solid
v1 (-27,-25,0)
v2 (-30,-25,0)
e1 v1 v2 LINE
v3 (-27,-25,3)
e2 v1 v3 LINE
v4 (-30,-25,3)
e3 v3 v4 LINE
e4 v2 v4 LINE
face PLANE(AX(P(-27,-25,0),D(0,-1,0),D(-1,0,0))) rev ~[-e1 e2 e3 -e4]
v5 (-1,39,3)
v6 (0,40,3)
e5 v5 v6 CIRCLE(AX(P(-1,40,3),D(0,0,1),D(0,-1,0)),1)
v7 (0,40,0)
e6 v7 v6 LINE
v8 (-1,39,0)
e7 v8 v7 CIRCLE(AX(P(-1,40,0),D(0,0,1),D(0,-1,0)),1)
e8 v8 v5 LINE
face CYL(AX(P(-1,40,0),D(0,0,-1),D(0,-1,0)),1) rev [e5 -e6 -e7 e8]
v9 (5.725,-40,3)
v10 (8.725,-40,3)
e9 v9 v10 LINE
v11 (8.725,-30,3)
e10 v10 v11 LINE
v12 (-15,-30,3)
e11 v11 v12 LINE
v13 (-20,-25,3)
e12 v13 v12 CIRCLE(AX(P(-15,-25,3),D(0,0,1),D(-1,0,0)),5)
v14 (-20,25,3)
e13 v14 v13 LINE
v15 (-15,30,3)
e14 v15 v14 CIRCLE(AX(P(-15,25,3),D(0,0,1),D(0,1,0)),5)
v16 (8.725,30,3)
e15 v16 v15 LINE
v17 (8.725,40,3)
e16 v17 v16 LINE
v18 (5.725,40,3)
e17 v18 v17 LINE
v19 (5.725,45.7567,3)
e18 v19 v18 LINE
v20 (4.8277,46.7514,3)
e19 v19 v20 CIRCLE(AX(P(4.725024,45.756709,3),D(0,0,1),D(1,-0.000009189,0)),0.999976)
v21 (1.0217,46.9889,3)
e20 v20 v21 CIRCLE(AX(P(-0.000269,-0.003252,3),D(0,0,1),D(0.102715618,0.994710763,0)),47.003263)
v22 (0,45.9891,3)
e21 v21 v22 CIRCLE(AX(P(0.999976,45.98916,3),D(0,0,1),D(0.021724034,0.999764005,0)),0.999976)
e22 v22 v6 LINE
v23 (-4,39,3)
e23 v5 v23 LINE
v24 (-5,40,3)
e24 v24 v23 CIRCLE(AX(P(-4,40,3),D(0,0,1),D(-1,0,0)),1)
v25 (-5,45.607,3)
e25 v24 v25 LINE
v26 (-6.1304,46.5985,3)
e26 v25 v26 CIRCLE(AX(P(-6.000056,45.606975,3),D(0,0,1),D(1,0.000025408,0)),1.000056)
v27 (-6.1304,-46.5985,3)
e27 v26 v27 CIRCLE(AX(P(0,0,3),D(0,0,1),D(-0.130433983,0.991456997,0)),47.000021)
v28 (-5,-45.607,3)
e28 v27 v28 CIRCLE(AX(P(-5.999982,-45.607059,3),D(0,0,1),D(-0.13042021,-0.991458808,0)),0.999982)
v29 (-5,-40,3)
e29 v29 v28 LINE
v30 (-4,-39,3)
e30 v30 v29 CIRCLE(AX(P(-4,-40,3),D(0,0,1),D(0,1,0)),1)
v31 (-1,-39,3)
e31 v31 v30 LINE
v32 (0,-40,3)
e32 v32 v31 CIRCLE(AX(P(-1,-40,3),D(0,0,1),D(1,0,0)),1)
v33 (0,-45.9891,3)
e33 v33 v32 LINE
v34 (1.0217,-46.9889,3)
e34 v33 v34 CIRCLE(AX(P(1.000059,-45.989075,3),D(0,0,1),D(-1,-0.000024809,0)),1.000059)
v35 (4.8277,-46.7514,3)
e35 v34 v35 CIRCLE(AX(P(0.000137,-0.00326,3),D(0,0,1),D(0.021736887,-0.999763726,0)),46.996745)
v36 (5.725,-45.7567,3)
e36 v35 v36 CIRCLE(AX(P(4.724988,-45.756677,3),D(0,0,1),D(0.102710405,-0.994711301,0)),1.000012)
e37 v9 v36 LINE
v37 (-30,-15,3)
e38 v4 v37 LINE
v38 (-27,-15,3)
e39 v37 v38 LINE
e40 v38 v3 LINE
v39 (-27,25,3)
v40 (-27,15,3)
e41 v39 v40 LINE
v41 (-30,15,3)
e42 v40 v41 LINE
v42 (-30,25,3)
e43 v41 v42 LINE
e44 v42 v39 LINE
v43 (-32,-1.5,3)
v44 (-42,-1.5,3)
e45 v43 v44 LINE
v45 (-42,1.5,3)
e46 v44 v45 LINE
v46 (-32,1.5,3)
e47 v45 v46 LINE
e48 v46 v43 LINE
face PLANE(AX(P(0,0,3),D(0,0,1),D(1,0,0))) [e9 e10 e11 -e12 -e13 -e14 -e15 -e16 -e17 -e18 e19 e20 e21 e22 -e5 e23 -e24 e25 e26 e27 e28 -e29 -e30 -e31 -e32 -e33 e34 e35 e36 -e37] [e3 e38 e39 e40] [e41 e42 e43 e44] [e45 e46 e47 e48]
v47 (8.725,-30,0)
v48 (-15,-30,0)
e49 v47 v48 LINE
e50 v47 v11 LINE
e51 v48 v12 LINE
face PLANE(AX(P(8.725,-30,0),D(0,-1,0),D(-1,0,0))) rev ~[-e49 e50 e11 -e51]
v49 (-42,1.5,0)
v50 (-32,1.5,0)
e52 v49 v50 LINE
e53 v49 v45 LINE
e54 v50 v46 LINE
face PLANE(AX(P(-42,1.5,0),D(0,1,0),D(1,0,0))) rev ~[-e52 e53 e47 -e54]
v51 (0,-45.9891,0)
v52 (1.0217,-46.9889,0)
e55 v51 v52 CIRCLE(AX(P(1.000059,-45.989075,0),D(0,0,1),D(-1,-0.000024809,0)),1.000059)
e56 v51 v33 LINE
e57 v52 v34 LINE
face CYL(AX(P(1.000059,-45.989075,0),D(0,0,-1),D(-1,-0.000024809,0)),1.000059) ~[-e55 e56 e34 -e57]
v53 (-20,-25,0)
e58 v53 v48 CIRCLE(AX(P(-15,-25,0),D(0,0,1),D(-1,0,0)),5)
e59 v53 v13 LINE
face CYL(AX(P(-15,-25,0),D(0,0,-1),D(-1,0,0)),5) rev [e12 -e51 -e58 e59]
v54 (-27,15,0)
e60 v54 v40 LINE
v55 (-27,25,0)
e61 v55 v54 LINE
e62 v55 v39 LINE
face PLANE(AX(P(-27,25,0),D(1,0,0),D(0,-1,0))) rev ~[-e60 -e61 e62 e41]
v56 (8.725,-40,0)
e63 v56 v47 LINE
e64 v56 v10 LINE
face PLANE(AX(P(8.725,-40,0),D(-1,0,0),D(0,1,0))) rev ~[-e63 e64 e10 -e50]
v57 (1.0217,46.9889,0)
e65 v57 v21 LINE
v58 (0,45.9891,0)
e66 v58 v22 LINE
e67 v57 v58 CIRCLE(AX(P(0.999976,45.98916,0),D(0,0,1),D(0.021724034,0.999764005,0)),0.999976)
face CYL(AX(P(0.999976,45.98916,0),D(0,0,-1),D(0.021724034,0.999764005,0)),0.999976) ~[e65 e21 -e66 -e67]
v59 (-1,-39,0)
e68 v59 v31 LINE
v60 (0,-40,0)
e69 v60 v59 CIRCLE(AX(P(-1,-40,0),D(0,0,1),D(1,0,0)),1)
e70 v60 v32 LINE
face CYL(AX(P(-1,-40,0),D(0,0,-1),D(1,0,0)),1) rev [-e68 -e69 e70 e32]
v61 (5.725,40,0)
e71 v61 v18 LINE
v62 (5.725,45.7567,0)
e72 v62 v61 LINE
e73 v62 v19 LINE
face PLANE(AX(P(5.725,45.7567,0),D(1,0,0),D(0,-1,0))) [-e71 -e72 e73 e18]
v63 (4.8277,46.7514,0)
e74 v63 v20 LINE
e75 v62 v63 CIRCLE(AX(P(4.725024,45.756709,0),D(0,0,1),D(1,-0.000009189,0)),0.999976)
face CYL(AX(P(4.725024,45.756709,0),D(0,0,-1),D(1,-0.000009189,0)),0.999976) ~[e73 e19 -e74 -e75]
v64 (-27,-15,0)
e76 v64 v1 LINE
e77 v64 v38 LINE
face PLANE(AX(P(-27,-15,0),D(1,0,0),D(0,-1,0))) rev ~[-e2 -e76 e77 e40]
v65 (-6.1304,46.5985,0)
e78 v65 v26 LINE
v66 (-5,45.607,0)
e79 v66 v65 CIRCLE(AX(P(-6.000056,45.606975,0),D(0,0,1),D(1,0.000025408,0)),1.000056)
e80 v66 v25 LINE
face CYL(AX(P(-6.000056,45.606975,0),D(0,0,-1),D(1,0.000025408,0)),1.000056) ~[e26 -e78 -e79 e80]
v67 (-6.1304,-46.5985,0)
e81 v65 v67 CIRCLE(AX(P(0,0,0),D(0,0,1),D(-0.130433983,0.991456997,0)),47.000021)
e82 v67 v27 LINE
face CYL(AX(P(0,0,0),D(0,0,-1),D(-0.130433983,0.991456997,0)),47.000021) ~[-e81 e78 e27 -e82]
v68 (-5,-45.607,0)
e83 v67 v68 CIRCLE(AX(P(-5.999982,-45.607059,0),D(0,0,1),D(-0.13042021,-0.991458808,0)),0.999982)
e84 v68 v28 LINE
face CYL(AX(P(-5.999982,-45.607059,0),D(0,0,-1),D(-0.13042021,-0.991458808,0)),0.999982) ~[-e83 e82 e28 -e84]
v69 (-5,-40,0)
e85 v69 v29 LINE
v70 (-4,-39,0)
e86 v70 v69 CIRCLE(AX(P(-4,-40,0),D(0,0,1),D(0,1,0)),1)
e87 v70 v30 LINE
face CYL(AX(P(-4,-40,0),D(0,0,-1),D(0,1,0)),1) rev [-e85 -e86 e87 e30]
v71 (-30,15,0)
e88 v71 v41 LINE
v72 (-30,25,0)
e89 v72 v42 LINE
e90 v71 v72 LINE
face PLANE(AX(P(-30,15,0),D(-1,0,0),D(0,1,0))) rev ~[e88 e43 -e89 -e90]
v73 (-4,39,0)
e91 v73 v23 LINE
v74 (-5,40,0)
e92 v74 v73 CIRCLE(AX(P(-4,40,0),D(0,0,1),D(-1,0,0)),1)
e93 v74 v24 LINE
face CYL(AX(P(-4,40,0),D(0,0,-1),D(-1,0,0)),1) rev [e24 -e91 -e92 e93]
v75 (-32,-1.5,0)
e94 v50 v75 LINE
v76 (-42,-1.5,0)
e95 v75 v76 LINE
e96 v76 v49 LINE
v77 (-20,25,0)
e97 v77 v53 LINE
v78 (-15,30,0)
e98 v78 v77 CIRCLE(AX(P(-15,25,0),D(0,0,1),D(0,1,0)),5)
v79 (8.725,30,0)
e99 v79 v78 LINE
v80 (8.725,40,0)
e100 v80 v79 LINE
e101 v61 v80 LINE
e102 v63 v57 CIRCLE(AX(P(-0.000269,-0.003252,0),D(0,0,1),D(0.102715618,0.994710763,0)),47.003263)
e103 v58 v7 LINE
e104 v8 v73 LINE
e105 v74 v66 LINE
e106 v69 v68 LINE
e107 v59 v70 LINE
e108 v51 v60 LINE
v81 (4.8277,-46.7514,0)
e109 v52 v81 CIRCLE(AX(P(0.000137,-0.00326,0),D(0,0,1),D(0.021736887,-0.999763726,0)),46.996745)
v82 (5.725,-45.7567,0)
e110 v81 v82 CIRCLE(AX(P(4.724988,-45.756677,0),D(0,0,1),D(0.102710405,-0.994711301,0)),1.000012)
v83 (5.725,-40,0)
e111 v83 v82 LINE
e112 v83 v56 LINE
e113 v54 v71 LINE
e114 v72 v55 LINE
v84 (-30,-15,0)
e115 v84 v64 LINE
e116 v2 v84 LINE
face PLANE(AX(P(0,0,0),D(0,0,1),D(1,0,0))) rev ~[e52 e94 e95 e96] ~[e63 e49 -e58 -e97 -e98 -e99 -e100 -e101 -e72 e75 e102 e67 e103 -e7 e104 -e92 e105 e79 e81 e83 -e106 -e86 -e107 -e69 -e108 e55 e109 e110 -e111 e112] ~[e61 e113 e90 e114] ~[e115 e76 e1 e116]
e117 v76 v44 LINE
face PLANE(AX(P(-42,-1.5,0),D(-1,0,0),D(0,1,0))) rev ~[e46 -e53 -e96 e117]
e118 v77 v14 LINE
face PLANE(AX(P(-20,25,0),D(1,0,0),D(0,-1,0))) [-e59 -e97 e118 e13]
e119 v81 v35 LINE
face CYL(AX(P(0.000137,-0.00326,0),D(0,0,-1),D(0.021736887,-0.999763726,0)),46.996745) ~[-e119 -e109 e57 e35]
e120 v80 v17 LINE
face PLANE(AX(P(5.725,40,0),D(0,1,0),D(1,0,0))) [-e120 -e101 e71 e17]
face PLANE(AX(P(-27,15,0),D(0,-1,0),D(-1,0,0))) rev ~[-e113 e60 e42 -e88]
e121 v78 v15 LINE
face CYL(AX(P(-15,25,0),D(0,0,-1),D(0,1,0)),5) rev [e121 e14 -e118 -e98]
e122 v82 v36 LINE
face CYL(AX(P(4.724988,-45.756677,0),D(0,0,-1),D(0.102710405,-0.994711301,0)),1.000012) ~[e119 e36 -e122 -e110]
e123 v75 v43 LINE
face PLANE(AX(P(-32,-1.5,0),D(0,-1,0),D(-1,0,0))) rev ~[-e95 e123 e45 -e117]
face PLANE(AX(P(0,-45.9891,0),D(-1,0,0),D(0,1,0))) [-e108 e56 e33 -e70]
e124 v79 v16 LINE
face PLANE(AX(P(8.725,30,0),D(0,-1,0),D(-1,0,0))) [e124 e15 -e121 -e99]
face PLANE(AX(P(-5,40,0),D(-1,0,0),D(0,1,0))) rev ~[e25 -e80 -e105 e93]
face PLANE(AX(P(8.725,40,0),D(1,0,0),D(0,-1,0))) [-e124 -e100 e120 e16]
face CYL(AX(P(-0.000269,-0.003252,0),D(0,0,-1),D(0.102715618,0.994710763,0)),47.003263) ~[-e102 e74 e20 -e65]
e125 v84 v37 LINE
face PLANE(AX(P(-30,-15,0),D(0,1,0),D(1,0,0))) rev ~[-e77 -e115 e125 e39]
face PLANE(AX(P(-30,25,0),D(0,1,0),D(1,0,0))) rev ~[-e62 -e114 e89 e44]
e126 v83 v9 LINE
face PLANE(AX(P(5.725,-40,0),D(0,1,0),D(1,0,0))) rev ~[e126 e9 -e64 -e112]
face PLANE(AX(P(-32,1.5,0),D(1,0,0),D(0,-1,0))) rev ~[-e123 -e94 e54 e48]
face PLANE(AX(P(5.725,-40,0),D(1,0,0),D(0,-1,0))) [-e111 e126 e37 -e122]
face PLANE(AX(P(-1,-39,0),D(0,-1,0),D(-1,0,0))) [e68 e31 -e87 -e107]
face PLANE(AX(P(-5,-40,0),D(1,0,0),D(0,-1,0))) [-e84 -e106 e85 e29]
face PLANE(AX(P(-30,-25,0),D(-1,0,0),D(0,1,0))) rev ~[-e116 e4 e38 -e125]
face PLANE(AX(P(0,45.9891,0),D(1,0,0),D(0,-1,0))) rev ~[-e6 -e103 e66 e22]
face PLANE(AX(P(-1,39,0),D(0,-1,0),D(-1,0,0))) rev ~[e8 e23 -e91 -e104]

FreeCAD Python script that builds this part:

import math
import FreeCAD as App
import Part
import Sketcher
Q = App.Units.Quantity


def add_polygon(sketch, points):
    """Adds a closed chain of lines whose ends are joined by coincident constraints."""
    first, n = sketch.GeometryCount, len(points)
    for a, b in zip(points, points[1:] + points[:1]):
        sketch.addGeometry(Part.LineSegment(App.Vector(*a, 0), App.Vector(*b, 0)), False)
    for i in range(n):
        sketch.addConstraint(Sketcher.Constraint("Coincident", first + i, 2, first + (i + 1) % n, 1))

doc = App.newDocument("Part")
body = doc.addObject("PartDesign::Body", "Body")

# Sketch on XY plane
sketch1 = body.newObject("Sketcher::SketchObject", "Sketch")
sketch1.AttachmentSupport = (doc.getObject("XY_Plane"), [""])
sketch1.MapMode = "FlatFace"
sketch1.addGeometry(Part.LineSegment(App.Vector(8.725, 40, 0), App.Vector(5.725, 40, 0)), False)  # 0
sketch1.addGeometry(Part.LineSegment(App.Vector(5.725, 40, 0), App.Vector(5.725, 45.7567, 0)), False)  # 1
sketch1.addGeometry(Part.ArcOfCircle(Part.Circle(App.Vector(4.725, 45.7567, 0), App.Vector(0, 0, 1), 1), math.radians(0), math.radians(84.105257)), False)  # 2
sketch1.addGeometry(Part.ArcOfCircle(Part.Circle(App.Vector(-0.000269, -0.003252, 0), App.Vector(0, 0, 1), 47.003263), math.radians(84.104431), math.radians(88.754147)), False)  # 3
sketch1.addGeometry(Part.ArcOfCircle(Part.Circle(App.Vector(1, 45.9891, 0), App.Vector(0, 0, 1), 1.000035), math.radians(88.756628), math.radians(180)), False)  # 4
sketch1.addGeometry(Part.LineSegment(App.Vector(0, 45.9891, 0), App.Vector(0, 40, 0)), False)  # 5
sketch1.addGeometry(Part.ArcOfCircle(Part.Circle(App.Vector(-1, 40, 0), App.Vector(0, 0, 1), 1), math.radians(-90), math.radians(0)), False)  # 6
sketch1.addGeometry(Part.LineSegment(App.Vector(-1, 39, 0), App.Vector(-4, 39, 0)), False)  # 7
sketch1.addGeometry(Part.ArcOfCircle(Part.Circle(App.Vector(-4, 40, 0), App.Vector(0, 0, 1), 1), math.radians(180), math.radians(270)), False)  # 8
sketch1.addGeometry(Part.LineSegment(App.Vector(-5, 40, 0), App.Vector(-5, 45.607, 0)), False)  # 9
sketch1.addGeometry(Part.ArcOfCircle(Part.Circle(App.Vector(-6, 45.607, 0), App.Vector(0, 0, 1), 1), math.radians(0), math.radians(97.49242)), False)  # 10
sketch1.addGeometry(Part.ArcOfCircle(Part.Circle(App.Vector(0, 0, 0), App.Vector(0, 0, 1), 47.000021), math.radians(97.494671), math.radians(262.505329)), False)  # 11
sketch1.addGeometry(Part.ArcOfCircle(Part.Circle(App.Vector(-6, -45.607, 0), App.Vector(0, 0, 1), 1.000038), math.radians(-97.49242), math.radians(0)), False)  # 12
sketch1.addGeometry(Part.LineSegment(App.Vector(-5, -45.607, 0), App.Vector(-5, -40, 0)), False)  # 13
sketch1.addGeometry(Part.ArcOfCircle(Part.Circle(App.Vector(-4, -40, 0), App.Vector(0, 0, 1), 1), math.radians(90), math.radians(180)), False)  # 14
sketch1.addGeometry(Part.LineSegment(App.Vector(-4, -39, 0), App.Vector(-1, -39, 0)), False)  # 15
sketch1.addGeometry(Part.ArcOfCircle(Part.Circle(App.Vector(-1, -40, 0), App.Vector(0, 0, 1), 1), math.radians(0), math.radians(90)), False)  # 16
sketch1.addGeometry(Part.LineSegment(App.Vector(0, -40, 0), App.Vector(0, -45.9891, 0)), False)  # 17
sketch1.addGeometry(Part.ArcOfCircle(Part.Circle(App.Vector(1, -45.9891, 0), App.Vector(0, 0, 1), 1), math.radians(180), math.radians(271.243372)), False)  # 18
sketch1.addGeometry(Part.ArcOfCircle(Part.Circle(App.Vector(0.000137, -0.00326, 0), App.Vector(0, 0, 1), 46.996745), math.radians(-88.75447), math.radians(-84.104108)), False)  # 19
sketch1.addGeometry(Part.ArcOfCircle(Part.Circle(App.Vector(4.725, -45.7567, 0), App.Vector(0, 0, 1), 0.999988), math.radians(-84.105257), math.radians(0)), False)  # 20
sketch1.addGeometry(Part.LineSegment(App.Vector(5.725, -45.7567, 0), App.Vector(5.725, -40, 0)), False)  # 21
sketch1.addGeometry(Part.LineSegment(App.Vector(5.725, -40, 0), App.Vector(8.725, -40, 0)), False)  # 22
sketch1.addGeometry(Part.LineSegment(App.Vector(8.725, -40, 0), App.Vector(8.725, -30, 0)), False)  # 23
sketch1.addGeometry(Part.LineSegment(App.Vector(8.725, -30, 0), App.Vector(-15, -30, 0)), False)  # 24
sketch1.addGeometry(Part.ArcOfCircle(Part.Circle(App.Vector(-15, -25, 0), App.Vector(0, 0, 1), 5), math.radians(180), math.radians(270)), False)  # 25
sketch1.addGeometry(Part.LineSegment(App.Vector(-20, -25, 0), App.Vector(-20, 25, 0)), False)  # 26
sketch1.addGeometry(Part.ArcOfCircle(Part.Circle(App.Vector(-15, 25, 0), App.Vector(0, 0, 1), 5), math.radians(90), math.radians(180)), False)  # 27
sketch1.addGeometry(Part.LineSegment(App.Vector(-15, 30, 0), App.Vector(8.725, 30, 0)), False)  # 28
sketch1.addGeometry(Part.LineSegment(App.Vector(8.725, 30, 0), App.Vector(8.725, 40, 0)), False)  # 29
add_polygon(sketch1, [(-42, -1.5), (-42, 1.5), (-32, 1.5), (-32, -1.5)])  # lines 30-33
add_polygon(sketch1, [(-30, -25), (-30, -15), (-27, -15), (-27, -25)])  # lines 34-37
add_polygon(sketch1, [(-30, 15), (-30, 25), (-27, 25), (-27, 15)])  # lines 38-41
sketch1.addConstraint([
    Sketcher.Constraint("Coincident", 0, 2, 1, 1),
    Sketcher.Constraint("Tangent", 1, 2, 2, 1),
    Sketcher.Constraint("Tangent", 2, 2, 3, 1),
    Sketcher.Constraint("Tangent", 3, 2, 4, 1),
    Sketcher.Constraint("Tangent", 4, 2, 5, 1),
    Sketcher.Constraint("Tangent", 5, 2, 6, 2),
    Sketcher.Constraint("Tangent", 6, 1, 7, 1),
    Sketcher.Constraint("Tangent", 7, 2, 8, 2),
    Sketcher.Constraint("Tangent", 8, 1, 9, 1),
    Sketcher.Constraint("Tangent", 9, 2, 10, 1),
    Sketcher.Constraint("Tangent", 10, 2, 11, 1),
    Sketcher.Constraint("Tangent", 11, 2, 12, 1),
    Sketcher.Constraint("Tangent", 12, 2, 13, 1),
    Sketcher.Constraint("Tangent", 13, 2, 14, 2),
    Sketcher.Constraint("Tangent", 14, 1, 15, 1),
    Sketcher.Constraint("Tangent", 15, 2, 16, 2),
    Sketcher.Constraint("Tangent", 16, 1, 17, 1),
    Sketcher.Constraint("Tangent", 17, 2, 18, 1),
    Sketcher.Constraint("Tangent", 18, 2, 19, 1),
    Sketcher.Constraint("Tangent", 19, 2, 20, 1),
    Sketcher.Constraint("Tangent", 20, 2, 21, 1),
    Sketcher.Constraint("Coincident", 21, 2, 22, 1),
    Sketcher.Constraint("Coincident", 22, 2, 23, 1),
    Sketcher.Constraint("Coincident", 23, 2, 24, 1),
    Sketcher.Constraint("Tangent", 24, 2, 25, 2),
    Sketcher.Constraint("Tangent", 25, 1, 26, 1),
    Sketcher.Constraint("Tangent", 26, 2, 27, 2),
    Sketcher.Constraint("Tangent", 27, 1, 28, 1),
    Sketcher.Constraint("Coincident", 28, 2, 29, 1),
    Sketcher.Constraint("Coincident", 29, 2, 0, 1),
    Sketcher.Constraint("Horizontal", 0),
    Sketcher.Constraint("Vertical", 1),
    Sketcher.Constraint("Vertical", 5),
    Sketcher.Constraint("Horizontal", 7),
    Sketcher.Constraint("Vertical", 9),
    Sketcher.Constraint("Vertical", 13),
    Sketcher.Constraint("Horizontal", 15),
    Sketcher.Constraint("Vertical", 17),
    Sketcher.Constraint("Vertical", 21),
    Sketcher.Constraint("Horizontal", 22),
    Sketcher.Constraint("Vertical", 23),
    Sketcher.Constraint("Horizontal", 24),
    Sketcher.Constraint("Vertical", 26),
    Sketcher.Constraint("Horizontal", 28),
    Sketcher.Constraint("Vertical", 29),
    Sketcher.Constraint("Vertical", 30),
    Sketcher.Constraint("Horizontal", 31),
    Sketcher.Constraint("Vertical", 32),
    Sketcher.Constraint("Horizontal", 33),
    Sketcher.Constraint("Vertical", 34),
    Sketcher.Constraint("Horizontal", 35),
    Sketcher.Constraint("Vertical", 36),
    Sketcher.Constraint("Horizontal", 37),
    Sketcher.Constraint("Vertical", 38),
    Sketcher.Constraint("Horizontal", 39),
    Sketcher.Constraint("Vertical", 40),
    Sketcher.Constraint("Horizontal", 41),
    Sketcher.Constraint("Coincident", 11, 3, -1, 1),
    Sketcher.Constraint("Equal", 2, 4),
    Sketcher.Constraint("Equal", 4, 6),
    Sketcher.Constraint("Equal", 6, 8),
    Sketcher.Constraint("Equal", 8, 10),
    Sketcher.Constraint("Equal", 10, 12),
    Sketcher.Constraint("Equal", 12, 14),
    Sketcher.Constraint("Equal", 14, 16),
    Sketcher.Constraint("Equal", 16, 18),
    Sketcher.Constraint("Equal", 18, 20),
    Sketcher.Constraint("Equal", 25, 27),
    Sketcher.Constraint("Symmetric", 5, 2, 16, 1, -1, 1),
    Sketcher.Constraint("Symmetric", 4, 3, 18, 3, -1),
    Sketcher.Constraint("Symmetric", 2, 3, 20, 3, -1),
    Sketcher.Constraint("Symmetric", 23, 2, 28, 2, -1),
    Sketcher.Constraint("Symmetric", 37, 2, 38, 2, -1),
    Sketcher.Constraint("Symmetric", 35, 2, 40, 2, -1),
    Sketcher.Constraint("PointOnObject", 19, 3, -2),
    Sketcher.Constraint("Horizontal", 3, 3, 19, 3),
    Sketcher.Constraint("Horizontal", 8, 3, 0, 2),
    Sketcher.Constraint("Horizontal", 16, 1, 21, 2),
    Sketcher.Constraint("Horizontal", 25, 1, 36, 2),
    Sketcher.Constraint("Vertical", 10, 3, 12, 3),
    Sketcher.Constraint("Equal", 0, 7),
    Sketcher.Constraint("Equal", 22, 35),
    Sketcher.Constraint("Equal", 33, 23),
    Sketcher.Constraint("Equal", 41, 30),
    Sketcher.Constraint("Equal", 29, 34),
    Sketcher.Constraint("Radius", 2, Q("1 mm")),
    Sketcher.Constraint("Radius", 25, Q("5 mm")),
    Sketcher.Constraint("DistanceX", 0, 2, 0, 1, Q("3 mm")),
    Sketcher.Constraint("DistanceX", 31, 1, 31, 2, Q("10 mm")),
    Sketcher.Constraint("DistanceX", 25, 3, -1, 1, Q("15 mm")),
    Sketcher.Constraint("DistanceY", 23, 2, -1, 1, Q("30 mm")),
    Sketcher.Constraint("DistanceX", 31, 2, -1, 1, Q("32 mm")),
    Sketcher.Constraint("DistanceX", 34, 2, -1, 1, Q("30 mm")),
    Sketcher.Constraint("Radius", 11, Q("47 mm")),
    Sketcher.Constraint("DistanceY", -1, 1, 30, 2, Q("1.5 mm")),
    Sketcher.Constraint("Radius", 3, Q("47.0033 mm")),
    Sketcher.Constraint("Radius", 19, Q("46.9967 mm")),
    Sketcher.Constraint("DistanceX", 24, 2, 24, 1, Q("23.725 mm")),
])
pad1 = body.newObject("PartDesign::Pad", "Pad")
pad1.Profile = sketch1
pad1.Length = 3

doc.recompute()
